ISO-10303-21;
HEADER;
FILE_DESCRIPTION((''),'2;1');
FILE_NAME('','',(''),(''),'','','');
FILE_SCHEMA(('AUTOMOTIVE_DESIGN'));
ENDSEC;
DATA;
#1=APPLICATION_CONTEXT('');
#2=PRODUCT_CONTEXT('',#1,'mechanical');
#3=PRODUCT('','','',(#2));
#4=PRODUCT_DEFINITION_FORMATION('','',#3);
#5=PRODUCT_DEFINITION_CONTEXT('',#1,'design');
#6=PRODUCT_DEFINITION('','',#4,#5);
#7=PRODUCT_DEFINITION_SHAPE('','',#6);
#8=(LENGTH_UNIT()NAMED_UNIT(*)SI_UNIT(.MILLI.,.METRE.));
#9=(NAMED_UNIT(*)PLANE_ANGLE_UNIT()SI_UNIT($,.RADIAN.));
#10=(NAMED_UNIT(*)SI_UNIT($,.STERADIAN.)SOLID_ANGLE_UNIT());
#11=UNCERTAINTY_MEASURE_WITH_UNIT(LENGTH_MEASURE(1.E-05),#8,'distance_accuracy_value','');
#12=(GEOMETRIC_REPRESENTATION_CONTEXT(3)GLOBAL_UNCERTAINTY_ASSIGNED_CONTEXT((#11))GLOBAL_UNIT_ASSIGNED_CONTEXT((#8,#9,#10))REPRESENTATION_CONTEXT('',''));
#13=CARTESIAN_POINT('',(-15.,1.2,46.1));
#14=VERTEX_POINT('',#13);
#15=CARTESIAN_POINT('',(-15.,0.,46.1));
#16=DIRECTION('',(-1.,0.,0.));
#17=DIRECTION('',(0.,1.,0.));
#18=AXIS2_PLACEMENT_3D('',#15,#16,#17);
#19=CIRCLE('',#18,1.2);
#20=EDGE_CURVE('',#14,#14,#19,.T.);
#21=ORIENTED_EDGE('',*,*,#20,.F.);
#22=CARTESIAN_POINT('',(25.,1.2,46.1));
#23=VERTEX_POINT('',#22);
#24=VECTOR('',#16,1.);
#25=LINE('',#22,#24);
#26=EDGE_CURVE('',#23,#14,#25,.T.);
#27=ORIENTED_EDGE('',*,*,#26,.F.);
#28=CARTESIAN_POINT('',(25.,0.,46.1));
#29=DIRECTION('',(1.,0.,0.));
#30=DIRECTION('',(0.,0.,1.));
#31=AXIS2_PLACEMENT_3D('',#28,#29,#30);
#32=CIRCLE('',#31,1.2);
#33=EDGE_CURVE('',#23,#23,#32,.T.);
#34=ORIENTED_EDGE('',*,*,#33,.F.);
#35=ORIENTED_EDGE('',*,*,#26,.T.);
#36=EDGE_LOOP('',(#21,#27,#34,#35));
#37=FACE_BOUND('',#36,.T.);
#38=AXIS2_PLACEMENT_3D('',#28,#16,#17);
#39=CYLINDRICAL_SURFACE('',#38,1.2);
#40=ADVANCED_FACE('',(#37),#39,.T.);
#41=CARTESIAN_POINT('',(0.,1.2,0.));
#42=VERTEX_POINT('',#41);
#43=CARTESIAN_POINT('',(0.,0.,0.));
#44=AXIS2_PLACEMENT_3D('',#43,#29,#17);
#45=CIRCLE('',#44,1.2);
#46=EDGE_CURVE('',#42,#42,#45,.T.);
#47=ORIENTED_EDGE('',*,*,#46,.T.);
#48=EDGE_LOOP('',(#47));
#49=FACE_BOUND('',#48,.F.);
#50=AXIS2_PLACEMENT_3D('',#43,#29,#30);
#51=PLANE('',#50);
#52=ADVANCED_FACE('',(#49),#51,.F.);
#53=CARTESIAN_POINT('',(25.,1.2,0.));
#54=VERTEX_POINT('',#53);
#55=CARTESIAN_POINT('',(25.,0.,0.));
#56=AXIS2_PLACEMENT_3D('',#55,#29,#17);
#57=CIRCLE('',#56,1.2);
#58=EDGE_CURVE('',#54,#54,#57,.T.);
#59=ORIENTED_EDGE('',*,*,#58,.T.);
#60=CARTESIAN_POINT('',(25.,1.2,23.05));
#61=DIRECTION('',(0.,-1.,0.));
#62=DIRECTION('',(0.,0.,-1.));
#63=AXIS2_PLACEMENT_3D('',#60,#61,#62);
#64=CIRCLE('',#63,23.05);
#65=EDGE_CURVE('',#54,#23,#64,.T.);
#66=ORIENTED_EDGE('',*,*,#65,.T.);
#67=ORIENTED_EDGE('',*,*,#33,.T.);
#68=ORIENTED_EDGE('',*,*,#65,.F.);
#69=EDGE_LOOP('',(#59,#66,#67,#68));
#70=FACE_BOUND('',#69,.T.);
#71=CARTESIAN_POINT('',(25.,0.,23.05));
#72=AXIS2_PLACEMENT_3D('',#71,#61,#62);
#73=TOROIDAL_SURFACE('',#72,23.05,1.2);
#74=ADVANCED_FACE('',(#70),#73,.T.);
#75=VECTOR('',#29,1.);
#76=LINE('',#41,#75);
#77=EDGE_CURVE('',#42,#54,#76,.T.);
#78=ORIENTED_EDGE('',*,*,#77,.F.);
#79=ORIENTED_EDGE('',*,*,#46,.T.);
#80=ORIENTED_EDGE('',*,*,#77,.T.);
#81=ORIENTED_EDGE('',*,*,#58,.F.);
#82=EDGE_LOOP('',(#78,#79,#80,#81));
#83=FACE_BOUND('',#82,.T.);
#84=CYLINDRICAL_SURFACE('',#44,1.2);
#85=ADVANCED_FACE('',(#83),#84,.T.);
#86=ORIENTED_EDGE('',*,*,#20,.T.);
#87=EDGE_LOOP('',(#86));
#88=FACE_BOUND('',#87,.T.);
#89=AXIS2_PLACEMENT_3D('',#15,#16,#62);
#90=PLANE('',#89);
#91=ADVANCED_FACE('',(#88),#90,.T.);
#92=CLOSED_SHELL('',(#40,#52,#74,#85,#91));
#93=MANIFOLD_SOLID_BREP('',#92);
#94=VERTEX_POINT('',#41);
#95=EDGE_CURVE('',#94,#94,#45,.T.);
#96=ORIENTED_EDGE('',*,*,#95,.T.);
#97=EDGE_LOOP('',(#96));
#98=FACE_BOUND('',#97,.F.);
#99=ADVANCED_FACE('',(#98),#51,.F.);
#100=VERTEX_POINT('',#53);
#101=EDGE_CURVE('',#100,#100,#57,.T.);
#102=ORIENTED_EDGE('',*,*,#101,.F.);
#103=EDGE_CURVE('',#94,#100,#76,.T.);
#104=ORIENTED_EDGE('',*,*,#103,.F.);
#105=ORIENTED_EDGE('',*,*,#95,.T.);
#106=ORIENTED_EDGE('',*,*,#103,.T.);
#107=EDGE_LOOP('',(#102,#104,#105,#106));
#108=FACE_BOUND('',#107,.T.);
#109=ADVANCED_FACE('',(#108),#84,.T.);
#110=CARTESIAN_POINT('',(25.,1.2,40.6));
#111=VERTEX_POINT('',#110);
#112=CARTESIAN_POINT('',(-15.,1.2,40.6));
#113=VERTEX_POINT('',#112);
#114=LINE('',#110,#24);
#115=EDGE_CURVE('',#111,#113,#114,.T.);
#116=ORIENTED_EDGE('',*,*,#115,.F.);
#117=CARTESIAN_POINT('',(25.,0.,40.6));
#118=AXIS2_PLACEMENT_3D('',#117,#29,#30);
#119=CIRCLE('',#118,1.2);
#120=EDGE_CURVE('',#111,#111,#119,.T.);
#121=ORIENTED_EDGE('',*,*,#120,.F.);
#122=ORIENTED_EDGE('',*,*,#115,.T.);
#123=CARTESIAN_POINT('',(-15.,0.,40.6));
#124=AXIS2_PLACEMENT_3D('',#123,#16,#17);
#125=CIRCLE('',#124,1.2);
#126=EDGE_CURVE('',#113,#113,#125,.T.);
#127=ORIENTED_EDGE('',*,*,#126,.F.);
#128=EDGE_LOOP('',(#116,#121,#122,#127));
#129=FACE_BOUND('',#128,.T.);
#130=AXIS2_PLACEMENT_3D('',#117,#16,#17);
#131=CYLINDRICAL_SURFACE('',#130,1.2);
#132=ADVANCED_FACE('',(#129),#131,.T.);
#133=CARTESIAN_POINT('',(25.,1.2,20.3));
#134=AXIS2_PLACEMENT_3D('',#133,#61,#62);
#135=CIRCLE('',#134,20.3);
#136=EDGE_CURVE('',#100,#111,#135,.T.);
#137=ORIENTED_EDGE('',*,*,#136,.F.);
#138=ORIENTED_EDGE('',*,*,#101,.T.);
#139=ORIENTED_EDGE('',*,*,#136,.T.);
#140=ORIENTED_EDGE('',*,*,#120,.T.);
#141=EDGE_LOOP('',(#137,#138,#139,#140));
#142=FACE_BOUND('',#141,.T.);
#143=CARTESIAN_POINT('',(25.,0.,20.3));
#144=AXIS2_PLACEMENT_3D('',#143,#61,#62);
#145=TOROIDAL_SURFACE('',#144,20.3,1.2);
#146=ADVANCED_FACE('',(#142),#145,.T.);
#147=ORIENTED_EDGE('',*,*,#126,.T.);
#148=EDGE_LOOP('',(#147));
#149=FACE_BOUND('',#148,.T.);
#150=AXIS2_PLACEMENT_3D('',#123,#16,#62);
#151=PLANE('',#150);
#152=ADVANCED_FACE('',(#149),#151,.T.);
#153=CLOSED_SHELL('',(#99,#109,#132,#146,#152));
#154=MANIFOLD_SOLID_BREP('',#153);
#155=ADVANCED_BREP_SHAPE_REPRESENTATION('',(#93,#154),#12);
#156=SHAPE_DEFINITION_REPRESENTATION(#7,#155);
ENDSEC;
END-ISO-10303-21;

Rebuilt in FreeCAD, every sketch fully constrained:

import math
import FreeCAD as App
import Part
import Sketcher
Q = App.Units.Quantity

doc = App.newDocument("Part")
body = doc.addObject("PartDesign::Body", "Body")

sketch1 = body.newObject("Sketcher::SketchObject", "Sketch")
sketch1.AttachmentSupport = (doc.getObject("YZ_Plane"), [""])
sketch1.MapMode = "FlatFace"
sketch1.addGeometry(Part.Circle(App.Vector(0, 0, 0), App.Vector(0, 0, 1), 1.2), False)
sketch1.addConstraint([
    Sketcher.Constraint("Coincident", 0, 3, -1, 1),
    Sketcher.Constraint("Diameter", 0, Q("2.4 mm")),
])

sketch2 = body.newObject("Sketcher::SketchObject", "Sketch001")
sketch2.AttachmentSupport = (doc.getObject("XZ_Plane"), [""])
sketch2.MapMode = "FlatFace"
sketch2.addGeometry([
    Part.LineSegment(App.Vector(0, 0, 0), App.Vector(25, 0, 0)),
    Part.ArcOfCircle(Part.Circle(App.Vector(25, 20, 0), App.Vector(0, 0, 1), 20), math.radians(-90), math.radians(90)),
    Part.LineSegment(App.Vector(25, 41, 0), App.Vector(-15, 41, 0)),
], False)
sketch2.addConstraint([
    Sketcher.Constraint("Tangent", 0, 2, 1, 1),
    Sketcher.Constraint("Tangent", 1, 2, 2, 1),
    Sketcher.Constraint("Horizontal", 0),
    Sketcher.Constraint("Horizontal", 2),
    Sketcher.Constraint("Coincident", 0, 1, -1, 1),
    Sketcher.Constraint("Radius", 1, Q("20.3 mm")),
    Sketcher.Constraint("DistanceX", 0, 1, 0, 2, Q("25 mm")),
    Sketcher.Constraint("DistanceX", 2, 2, 2, 1, Q("40 mm")),
])
doc.recompute()

additivepipe = body.newObject("PartDesign::AdditivePipe", "AdditivePipe")
additivepipe.Profile = sketch1
additivepipe.Spine = (sketch2, ["Edge1", "Edge2", "Edge3"])
body2 = doc.addObject("PartDesign::Body", "Body001")

sketch3 = body2.newObject("Sketcher::SketchObject", "Sketch002")
sketch3.AttachmentSupport = (doc.getObject("YZ_Plane001"), [""])
sketch3.MapMode = "FlatFace"
sketch3.addGeometry(Part.Circle(App.Vector(0, 0, 0), App.Vector(0, 0, 1), 1.2), False)
sketch3.addConstraint([
    Sketcher.Constraint("Coincident", 0, 3, -1, 1),
    Sketcher.Constraint("Diameter", 0, Q("2.4 mm")),
])

sketch4 = body2.newObject("Sketcher::SketchObject", "Sketch003")
sketch4.AttachmentSupport = (doc.getObject("XZ_Plane001"), [""])
sketch4.MapMode = "FlatFace"
sketch4.addGeometry([
    Part.LineSegment(App.Vector(0, 0, 0), App.Vector(25, 0, 0)),
    Part.ArcOfCircle(Part.Circle(App.Vector(25, 23, 0), App.Vector(0, 0, 1), 23), math.radians(-90), math.radians(90)),
    Part.LineSegment(App.Vector(25, 46, 0), App.Vector(-15, 46, 0)),
], False)
sketch4.addConstraint([
    Sketcher.Constraint("Tangent", 0, 2, 1, 1),
    Sketcher.Constraint("Tangent", 1, 2, 2, 1),
    Sketcher.Constraint("Horizontal", 0),
    Sketcher.Constraint("Horizontal", 2),
    Sketcher.Constraint("Coincident", 0, 1, -1, 1),
    Sketcher.Constraint("DistanceX", 0, 1, 0, 2, Q("25 mm")),
    Sketcher.Constraint("DistanceX", 2, 2, 2, 1, Q("40 mm")),
    Sketcher.Constraint("Radius", 1, Q("23.05 mm")),
])
doc.recompute()

additivepipe2 = body2.newObject("PartDesign::AdditivePipe", "AdditivePipe001")
additivepipe2.Profile = sketch3
additivepipe2.Spine = (sketch4, ["Edge1", "Edge2", "Edge3"])

doc.recompute()
